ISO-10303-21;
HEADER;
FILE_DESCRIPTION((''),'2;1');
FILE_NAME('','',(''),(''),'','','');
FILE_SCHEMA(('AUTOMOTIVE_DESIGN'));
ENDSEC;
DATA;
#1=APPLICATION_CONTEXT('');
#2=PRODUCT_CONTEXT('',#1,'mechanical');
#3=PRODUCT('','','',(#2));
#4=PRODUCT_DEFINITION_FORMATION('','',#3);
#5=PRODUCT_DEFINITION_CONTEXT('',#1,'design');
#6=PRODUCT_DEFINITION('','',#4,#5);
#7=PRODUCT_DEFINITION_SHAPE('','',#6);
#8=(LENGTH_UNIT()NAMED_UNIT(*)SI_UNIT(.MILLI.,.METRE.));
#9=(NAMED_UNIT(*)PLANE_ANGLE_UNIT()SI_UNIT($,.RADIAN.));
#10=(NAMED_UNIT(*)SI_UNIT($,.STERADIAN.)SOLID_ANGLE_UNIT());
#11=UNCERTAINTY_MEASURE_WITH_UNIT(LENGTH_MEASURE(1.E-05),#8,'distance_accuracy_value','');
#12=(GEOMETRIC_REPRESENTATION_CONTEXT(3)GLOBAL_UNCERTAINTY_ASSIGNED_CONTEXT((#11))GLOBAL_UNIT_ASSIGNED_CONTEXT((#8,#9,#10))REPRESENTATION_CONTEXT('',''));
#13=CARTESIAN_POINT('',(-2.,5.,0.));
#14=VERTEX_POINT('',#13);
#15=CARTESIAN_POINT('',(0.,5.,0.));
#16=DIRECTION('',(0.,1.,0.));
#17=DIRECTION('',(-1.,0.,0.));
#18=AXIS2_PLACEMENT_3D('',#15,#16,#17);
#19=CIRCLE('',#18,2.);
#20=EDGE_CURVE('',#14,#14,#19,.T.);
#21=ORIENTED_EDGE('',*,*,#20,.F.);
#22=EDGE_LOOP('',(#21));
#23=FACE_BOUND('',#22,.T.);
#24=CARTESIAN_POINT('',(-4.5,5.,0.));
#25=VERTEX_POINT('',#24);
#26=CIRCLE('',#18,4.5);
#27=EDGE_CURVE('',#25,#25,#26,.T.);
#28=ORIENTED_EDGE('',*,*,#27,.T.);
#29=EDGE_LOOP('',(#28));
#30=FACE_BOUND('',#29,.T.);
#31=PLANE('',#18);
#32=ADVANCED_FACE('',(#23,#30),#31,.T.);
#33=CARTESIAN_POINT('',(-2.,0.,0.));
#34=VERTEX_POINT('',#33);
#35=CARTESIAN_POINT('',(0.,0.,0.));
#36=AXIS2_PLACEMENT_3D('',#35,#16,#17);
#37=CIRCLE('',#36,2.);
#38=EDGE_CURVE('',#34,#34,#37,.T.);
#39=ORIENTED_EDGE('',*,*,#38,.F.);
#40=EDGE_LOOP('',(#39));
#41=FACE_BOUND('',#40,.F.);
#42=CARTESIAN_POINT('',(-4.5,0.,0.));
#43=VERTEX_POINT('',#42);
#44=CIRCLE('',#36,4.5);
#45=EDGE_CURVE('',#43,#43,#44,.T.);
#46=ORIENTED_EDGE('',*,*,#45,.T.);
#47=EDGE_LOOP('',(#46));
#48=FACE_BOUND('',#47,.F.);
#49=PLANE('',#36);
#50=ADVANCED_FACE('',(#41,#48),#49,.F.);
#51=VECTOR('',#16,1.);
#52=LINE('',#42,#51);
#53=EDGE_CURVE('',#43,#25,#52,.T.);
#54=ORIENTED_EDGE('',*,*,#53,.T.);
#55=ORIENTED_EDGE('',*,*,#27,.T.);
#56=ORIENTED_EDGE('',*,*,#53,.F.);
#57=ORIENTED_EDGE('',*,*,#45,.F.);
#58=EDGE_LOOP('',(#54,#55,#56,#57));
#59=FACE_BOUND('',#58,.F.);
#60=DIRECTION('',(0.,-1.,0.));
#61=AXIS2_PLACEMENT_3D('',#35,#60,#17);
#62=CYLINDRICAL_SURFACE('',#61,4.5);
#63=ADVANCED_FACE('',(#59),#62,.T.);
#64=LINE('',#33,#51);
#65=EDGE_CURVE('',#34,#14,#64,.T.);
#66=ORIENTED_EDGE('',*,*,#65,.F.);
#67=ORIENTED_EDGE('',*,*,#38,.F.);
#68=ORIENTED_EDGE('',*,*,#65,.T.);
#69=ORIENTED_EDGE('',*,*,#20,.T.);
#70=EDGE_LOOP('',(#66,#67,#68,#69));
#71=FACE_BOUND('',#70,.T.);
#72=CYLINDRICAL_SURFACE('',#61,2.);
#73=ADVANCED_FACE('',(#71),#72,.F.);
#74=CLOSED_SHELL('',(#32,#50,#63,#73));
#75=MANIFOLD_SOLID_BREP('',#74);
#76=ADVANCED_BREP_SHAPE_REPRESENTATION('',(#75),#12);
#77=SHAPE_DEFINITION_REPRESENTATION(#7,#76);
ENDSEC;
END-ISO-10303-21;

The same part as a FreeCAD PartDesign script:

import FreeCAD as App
import Part
import Sketcher

doc = App.newDocument("Part")
body = doc.addObject("PartDesign::Body", "Body")

sketch1 = body.newObject("Sketcher::SketchObject", "Sketch")
sketch1.AttachmentSupport = (doc.getObject("XZ_Plane"), [""])
sketch1.MapMode = "FlatFace"
sketch1.addGeometry([
    Part.Circle(App.Vector(0, 0, 0), App.Vector(0, 0, 1), 4.5),
    Part.Circle(App.Vector(0, 0, 0), App.Vector(0, 0, 1), 2),
], False)
sketch1.addConstraint([
    Sketcher.Constraint("Coincident", 0, 3, -1, 1),
    Sketcher.Constraint("Coincident", 1, 3, -1, 1),
    Sketcher.Constraint("Diameter", 0, 9.0),
    Sketcher.Constraint("Diameter", 1, 4.0),
])
pad1 = body.newObject("PartDesign::Pad", "Pad")
pad1.Profile = sketch1
pad1.Length = 5
pad1.Reversed = True

doc.recompute()
